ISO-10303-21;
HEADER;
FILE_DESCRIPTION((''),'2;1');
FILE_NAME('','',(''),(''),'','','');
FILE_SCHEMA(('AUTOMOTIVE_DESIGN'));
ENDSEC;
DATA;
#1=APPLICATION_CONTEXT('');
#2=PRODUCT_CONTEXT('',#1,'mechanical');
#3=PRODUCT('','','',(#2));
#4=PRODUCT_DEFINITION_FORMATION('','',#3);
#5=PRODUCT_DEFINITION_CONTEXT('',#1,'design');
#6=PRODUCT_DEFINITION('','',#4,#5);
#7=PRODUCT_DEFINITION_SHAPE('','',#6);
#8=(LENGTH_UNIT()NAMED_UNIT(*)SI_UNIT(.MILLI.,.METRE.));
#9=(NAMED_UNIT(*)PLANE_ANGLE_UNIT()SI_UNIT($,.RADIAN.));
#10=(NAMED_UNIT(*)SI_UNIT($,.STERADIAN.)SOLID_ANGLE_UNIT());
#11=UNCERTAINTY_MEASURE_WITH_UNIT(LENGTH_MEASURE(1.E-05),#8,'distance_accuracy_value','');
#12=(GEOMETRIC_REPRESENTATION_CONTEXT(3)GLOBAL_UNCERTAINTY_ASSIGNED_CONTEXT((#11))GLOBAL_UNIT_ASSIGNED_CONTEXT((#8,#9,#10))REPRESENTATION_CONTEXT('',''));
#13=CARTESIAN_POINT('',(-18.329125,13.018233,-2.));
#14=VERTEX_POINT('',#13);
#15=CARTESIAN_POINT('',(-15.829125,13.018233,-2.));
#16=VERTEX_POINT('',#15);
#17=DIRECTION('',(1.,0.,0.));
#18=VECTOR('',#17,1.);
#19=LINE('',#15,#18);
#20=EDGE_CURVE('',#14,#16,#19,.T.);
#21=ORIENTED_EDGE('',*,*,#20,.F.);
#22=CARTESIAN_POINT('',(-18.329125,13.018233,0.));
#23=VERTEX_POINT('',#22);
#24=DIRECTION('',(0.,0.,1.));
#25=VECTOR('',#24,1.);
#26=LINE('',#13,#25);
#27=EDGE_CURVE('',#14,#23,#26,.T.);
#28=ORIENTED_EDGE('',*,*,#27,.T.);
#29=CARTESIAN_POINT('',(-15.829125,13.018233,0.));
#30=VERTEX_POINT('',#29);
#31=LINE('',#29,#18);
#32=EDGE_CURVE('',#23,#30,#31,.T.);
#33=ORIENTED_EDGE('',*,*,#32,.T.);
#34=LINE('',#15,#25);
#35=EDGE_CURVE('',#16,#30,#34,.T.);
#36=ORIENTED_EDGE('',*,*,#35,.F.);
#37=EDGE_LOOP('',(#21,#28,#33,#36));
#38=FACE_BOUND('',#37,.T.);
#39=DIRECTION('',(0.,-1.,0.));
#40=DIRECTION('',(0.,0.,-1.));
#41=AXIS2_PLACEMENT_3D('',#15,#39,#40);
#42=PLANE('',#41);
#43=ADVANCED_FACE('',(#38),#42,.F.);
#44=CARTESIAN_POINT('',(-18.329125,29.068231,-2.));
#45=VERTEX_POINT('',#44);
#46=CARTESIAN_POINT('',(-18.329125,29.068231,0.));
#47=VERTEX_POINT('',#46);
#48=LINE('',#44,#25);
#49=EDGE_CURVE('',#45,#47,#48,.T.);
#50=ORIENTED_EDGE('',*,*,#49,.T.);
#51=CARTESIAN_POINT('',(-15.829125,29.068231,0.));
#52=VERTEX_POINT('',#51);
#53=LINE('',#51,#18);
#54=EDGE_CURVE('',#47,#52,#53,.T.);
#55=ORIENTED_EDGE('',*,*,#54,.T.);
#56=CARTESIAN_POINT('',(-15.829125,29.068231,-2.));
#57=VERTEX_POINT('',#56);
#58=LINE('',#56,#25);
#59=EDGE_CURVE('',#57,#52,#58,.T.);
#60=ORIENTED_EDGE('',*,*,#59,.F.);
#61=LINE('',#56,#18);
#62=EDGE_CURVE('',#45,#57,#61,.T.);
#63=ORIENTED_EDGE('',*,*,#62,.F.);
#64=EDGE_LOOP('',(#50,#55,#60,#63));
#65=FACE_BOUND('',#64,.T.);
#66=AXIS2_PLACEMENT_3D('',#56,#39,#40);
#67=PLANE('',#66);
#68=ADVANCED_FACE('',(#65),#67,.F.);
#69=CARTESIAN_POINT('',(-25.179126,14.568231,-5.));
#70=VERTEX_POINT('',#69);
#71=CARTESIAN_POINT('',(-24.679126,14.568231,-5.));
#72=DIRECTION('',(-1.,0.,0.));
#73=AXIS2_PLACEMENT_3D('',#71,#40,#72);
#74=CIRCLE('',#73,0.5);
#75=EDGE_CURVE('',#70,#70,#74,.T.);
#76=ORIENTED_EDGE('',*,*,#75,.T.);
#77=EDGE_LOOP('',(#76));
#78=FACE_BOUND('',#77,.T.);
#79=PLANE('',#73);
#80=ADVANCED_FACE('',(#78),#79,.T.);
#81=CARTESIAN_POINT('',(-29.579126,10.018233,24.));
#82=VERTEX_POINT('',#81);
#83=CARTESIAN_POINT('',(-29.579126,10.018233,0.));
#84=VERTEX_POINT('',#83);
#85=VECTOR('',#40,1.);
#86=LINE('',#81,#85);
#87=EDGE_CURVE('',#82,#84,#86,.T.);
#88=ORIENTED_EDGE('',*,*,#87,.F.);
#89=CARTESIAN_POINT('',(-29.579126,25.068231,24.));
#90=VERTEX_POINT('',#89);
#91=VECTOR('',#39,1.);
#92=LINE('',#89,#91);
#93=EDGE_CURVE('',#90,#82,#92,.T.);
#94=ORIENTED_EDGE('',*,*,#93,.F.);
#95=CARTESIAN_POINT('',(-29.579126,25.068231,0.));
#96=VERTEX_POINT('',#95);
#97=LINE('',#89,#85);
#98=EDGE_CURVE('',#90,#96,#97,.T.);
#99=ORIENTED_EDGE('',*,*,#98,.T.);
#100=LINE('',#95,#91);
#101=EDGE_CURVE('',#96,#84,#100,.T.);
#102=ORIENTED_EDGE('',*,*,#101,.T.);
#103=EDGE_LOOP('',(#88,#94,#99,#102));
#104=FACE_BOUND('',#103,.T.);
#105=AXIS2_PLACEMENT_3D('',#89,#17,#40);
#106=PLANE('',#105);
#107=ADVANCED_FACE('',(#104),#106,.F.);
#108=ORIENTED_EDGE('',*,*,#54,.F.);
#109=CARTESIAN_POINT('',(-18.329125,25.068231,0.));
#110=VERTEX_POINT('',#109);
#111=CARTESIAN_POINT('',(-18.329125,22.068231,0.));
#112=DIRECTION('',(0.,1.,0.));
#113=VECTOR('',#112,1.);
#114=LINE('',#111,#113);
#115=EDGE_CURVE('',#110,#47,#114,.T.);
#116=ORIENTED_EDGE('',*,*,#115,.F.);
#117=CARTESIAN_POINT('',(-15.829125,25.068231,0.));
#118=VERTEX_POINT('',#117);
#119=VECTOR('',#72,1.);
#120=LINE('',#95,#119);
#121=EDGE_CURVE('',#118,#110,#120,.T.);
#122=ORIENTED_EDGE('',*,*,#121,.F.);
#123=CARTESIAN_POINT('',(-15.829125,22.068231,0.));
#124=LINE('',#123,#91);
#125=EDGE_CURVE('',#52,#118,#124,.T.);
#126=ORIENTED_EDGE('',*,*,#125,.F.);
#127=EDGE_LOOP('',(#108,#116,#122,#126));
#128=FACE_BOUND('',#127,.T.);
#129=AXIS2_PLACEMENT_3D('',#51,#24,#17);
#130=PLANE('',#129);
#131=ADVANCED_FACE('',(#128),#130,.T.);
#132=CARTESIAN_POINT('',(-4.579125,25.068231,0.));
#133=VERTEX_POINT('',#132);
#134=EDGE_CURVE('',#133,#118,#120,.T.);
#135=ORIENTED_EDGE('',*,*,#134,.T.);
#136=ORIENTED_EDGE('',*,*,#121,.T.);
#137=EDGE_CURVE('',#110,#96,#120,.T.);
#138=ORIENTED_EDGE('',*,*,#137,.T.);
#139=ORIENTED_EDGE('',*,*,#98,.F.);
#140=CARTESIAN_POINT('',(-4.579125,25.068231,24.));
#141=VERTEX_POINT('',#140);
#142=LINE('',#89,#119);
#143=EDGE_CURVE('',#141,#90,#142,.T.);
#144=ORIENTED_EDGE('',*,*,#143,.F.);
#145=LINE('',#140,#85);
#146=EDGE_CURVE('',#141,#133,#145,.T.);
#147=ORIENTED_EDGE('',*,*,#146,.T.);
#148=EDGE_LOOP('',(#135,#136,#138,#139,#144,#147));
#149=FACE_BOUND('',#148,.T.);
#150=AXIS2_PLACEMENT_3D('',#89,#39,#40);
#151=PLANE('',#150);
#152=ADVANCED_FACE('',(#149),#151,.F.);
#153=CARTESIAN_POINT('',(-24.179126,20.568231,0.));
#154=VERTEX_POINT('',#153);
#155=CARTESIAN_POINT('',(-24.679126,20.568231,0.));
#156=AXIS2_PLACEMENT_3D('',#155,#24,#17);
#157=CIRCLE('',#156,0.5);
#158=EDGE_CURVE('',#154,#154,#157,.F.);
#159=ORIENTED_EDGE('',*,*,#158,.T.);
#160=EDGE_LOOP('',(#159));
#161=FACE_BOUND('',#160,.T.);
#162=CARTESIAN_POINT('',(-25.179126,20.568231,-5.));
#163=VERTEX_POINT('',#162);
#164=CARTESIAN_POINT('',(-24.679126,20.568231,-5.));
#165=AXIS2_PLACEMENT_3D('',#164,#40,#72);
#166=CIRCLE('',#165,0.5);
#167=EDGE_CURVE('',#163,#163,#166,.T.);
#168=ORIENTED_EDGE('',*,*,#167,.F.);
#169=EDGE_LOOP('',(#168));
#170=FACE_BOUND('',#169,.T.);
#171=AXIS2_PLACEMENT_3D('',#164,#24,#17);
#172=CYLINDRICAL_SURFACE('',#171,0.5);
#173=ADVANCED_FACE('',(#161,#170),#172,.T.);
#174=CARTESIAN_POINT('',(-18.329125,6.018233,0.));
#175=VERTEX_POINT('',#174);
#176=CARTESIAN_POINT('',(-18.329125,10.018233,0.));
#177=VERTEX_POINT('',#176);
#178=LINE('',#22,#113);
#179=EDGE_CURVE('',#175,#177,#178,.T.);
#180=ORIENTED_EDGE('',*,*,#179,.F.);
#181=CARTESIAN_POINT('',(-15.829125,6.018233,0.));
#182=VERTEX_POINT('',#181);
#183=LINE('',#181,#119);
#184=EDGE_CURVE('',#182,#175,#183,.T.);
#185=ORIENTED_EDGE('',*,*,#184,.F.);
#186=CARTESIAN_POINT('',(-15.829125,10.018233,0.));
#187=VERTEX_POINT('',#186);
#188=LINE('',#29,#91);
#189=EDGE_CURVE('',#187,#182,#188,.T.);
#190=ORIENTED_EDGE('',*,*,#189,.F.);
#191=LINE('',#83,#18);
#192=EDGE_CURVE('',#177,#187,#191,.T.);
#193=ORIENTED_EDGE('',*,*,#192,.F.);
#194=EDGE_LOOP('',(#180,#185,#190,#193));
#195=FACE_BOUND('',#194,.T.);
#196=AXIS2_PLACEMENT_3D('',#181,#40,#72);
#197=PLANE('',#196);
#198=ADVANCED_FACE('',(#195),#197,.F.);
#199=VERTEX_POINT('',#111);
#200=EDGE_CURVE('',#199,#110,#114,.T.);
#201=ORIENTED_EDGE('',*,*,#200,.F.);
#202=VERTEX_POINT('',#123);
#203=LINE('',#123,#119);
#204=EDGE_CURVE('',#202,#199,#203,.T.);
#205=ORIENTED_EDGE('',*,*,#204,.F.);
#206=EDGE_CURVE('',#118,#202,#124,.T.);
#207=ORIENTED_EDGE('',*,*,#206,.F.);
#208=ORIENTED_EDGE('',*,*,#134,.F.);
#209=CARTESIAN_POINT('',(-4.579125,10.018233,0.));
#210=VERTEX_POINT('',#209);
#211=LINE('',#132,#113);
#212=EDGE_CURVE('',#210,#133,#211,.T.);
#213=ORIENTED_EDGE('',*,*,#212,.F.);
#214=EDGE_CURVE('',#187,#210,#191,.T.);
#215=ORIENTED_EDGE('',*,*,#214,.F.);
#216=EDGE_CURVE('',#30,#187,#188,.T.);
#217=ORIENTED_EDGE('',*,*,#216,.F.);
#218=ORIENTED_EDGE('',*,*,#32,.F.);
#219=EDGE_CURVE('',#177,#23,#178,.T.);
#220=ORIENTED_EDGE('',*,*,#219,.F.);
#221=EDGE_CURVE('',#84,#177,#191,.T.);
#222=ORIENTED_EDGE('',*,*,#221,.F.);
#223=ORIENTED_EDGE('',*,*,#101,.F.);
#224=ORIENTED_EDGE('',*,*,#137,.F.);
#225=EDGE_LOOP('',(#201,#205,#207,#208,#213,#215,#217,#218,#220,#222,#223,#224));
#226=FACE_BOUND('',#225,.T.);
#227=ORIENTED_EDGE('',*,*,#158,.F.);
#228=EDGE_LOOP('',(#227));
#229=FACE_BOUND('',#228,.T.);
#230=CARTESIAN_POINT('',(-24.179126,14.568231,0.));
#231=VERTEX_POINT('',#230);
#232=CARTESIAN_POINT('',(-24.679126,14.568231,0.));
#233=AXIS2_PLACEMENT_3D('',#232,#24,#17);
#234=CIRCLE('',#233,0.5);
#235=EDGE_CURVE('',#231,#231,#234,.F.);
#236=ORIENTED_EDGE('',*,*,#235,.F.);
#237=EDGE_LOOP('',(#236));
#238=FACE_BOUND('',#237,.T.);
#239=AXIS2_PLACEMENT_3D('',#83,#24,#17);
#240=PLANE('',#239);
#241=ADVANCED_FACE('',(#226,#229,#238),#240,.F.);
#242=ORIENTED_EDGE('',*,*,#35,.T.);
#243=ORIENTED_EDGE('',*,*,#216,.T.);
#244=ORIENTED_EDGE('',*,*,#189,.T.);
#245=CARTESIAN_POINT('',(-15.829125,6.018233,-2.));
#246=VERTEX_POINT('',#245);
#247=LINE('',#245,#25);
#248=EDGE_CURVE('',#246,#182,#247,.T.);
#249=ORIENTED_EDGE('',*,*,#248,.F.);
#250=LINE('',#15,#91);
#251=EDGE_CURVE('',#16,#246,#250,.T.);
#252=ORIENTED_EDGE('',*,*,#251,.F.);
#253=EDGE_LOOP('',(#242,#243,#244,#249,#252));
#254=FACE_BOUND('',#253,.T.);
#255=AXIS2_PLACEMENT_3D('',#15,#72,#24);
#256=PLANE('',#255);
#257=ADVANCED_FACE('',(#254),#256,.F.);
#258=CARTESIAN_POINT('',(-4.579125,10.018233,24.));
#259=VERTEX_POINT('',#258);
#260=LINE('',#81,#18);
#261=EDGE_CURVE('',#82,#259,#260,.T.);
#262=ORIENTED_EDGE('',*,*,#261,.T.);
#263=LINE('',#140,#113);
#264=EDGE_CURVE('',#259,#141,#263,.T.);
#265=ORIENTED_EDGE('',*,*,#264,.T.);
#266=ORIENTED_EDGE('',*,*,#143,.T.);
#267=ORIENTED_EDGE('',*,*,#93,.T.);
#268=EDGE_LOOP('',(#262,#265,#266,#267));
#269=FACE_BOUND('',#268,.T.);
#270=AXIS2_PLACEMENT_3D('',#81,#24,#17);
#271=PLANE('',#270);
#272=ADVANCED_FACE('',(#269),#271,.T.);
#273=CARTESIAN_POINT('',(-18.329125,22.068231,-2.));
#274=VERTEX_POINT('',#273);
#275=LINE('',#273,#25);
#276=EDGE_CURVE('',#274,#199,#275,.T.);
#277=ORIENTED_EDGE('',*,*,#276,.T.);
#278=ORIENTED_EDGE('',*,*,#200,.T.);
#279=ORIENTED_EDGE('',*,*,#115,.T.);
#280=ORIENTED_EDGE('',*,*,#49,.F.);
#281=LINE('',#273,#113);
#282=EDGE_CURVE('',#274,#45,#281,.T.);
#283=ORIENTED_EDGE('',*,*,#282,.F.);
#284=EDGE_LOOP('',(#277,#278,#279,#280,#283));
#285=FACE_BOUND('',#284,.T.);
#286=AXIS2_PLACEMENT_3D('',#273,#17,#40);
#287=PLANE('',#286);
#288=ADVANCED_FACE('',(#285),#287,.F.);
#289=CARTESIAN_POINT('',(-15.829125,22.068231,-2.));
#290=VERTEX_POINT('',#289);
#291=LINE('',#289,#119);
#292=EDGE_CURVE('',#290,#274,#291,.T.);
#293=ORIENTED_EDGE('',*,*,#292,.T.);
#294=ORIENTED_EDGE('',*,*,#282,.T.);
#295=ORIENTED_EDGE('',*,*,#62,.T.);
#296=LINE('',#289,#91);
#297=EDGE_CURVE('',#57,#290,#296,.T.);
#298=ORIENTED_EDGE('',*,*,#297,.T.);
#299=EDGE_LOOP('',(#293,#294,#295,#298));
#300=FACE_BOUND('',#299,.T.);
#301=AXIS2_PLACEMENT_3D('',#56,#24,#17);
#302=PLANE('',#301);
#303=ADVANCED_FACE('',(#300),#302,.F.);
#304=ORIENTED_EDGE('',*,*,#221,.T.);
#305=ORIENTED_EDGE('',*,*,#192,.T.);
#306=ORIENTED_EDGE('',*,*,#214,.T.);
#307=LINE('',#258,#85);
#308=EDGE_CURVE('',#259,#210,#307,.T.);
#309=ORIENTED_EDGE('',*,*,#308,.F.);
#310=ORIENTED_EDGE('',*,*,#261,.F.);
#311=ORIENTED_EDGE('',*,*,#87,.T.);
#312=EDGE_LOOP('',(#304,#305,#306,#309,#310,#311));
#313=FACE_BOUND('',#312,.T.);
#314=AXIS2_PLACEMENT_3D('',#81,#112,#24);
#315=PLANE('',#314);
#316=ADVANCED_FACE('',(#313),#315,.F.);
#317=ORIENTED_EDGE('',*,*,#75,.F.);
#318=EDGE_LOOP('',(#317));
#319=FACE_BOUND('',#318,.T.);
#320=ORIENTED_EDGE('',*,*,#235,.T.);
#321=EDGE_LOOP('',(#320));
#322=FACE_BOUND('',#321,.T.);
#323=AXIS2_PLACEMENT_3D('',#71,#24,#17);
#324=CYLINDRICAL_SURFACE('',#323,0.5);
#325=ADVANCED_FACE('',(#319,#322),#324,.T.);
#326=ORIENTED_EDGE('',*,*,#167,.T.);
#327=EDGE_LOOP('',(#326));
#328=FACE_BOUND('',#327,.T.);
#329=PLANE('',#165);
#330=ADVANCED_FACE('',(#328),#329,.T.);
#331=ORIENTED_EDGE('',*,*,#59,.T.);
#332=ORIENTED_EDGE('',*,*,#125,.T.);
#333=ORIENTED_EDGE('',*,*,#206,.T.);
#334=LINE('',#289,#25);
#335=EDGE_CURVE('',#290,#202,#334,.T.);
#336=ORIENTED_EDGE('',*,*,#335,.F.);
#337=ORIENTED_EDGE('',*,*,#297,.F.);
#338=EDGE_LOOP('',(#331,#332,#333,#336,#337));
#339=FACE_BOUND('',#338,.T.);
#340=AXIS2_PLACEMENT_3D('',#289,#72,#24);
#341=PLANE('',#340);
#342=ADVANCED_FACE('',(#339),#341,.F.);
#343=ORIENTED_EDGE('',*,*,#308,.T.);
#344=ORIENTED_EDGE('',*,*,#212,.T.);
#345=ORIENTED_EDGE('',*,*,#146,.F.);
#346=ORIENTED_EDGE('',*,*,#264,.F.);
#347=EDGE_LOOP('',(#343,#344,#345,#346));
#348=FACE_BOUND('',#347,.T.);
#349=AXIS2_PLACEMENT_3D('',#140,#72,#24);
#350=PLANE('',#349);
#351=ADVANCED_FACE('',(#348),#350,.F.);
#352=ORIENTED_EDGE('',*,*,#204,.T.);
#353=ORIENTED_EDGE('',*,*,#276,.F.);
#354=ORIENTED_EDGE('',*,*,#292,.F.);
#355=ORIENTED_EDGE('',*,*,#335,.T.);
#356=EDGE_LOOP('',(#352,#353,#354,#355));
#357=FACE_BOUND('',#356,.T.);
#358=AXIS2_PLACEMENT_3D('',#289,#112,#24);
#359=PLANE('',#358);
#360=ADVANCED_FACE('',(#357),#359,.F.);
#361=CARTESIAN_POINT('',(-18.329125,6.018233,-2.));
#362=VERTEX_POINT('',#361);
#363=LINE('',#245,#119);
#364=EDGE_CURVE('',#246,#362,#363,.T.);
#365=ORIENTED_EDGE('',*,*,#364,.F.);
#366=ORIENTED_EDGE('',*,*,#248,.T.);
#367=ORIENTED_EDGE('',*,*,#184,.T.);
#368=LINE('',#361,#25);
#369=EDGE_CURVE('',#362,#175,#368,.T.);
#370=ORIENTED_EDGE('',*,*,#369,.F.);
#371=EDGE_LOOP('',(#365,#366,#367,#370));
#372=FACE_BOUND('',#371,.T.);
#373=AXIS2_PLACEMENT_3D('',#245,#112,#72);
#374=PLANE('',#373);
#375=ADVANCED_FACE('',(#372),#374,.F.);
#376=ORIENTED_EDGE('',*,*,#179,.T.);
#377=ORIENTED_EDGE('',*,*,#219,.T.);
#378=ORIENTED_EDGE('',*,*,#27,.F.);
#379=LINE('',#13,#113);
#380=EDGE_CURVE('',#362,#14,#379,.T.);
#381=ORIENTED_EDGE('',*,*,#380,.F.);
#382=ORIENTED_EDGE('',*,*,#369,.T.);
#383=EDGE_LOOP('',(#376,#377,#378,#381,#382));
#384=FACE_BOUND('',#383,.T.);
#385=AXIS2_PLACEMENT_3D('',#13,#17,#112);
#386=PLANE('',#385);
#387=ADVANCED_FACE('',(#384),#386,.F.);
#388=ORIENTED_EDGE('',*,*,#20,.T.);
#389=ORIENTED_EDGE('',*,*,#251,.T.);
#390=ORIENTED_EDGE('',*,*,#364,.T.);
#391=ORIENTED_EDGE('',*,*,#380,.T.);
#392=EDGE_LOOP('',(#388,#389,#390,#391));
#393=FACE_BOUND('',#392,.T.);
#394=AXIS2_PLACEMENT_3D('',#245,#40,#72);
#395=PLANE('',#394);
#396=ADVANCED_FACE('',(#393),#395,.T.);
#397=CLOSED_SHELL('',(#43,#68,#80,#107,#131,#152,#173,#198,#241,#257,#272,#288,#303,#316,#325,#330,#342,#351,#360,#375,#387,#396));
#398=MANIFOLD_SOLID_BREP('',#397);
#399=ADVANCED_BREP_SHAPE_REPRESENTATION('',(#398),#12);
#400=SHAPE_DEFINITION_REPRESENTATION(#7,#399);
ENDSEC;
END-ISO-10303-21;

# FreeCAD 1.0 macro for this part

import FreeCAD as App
import Part
import Sketcher

V = App.Vector
Q = App.Units.Quantity

doc = App.newDocument("Part")
body = doc.addObject("PartDesign::Body", "Body")

# Sketch on XY plane
sketch1 = body.newObject("Sketcher::SketchObject", "Sketch")
sketch1.AttachmentSupport = (doc.getObject("XY_Plane"), [""])
sketch1.MapMode = "FlatFace"
sketch1.addGeometry(Part.LineSegment(V(-29.579126, 25.068231, 0), V(-29.579126, 10.018233, 0)), False)
sketch1.addGeometry(Part.LineSegment(V(-29.579126, 10.018233, 0), V(-4.579125, 10.018233, 0)), False)
sketch1.addGeometry(Part.LineSegment(V(-4.579125, 10.018233, 0), V(-4.579125, 25.068231, 0)), False)
sketch1.addGeometry(Part.LineSegment(V(-4.579125, 25.068231, 0), V(-29.579126, 25.068231, 0)), False)
sketch1.addConstraint(Sketcher.Constraint("Coincident", 0, 2, 1, 1))
sketch1.addConstraint(Sketcher.Constraint("Coincident", 1, 2, 2, 1))
sketch1.addConstraint(Sketcher.Constraint("Coincident", 2, 2, 3, 1))
sketch1.addConstraint(Sketcher.Constraint("Coincident", 3, 2, 0, 1))
sketch1.addConstraint(Sketcher.Constraint("Vertical", 0))
sketch1.addConstraint(Sketcher.Constraint("Horizontal", 1))
sketch1.addConstraint(Sketcher.Constraint("Vertical", 2))
sketch1.addConstraint(Sketcher.Constraint("Horizontal", 3))
sketch1.addConstraint(Sketcher.Constraint("DistanceX", 1, 1, 1, 2, Q("25.000001 mm")))
sketch1.addConstraint(Sketcher.Constraint("DistanceY", 0, 2, 0, 1, Q("15.049998 mm")))
sketch1.addConstraint(Sketcher.Constraint("DistanceY", -1, 1, 2, 2, Q("25.068231 mm")))
sketch1.addConstraint(Sketcher.Constraint("DistanceX", 0, 2, -1, 1, Q("29.579126 mm")))
pad1 = body.newObject("PartDesign::Pad", "Pad")
pad1.Profile = sketch1
pad1.Length = 24

# Sketch on XY plane
sketch2 = body.newObject("Sketcher::SketchObject", "Sketch001")
sketch2.AttachmentSupport = (doc.getObject("XY_Plane"), [""])
sketch2.MapMode = "FlatFace"
sketch2.addGeometry(Part.Circle(V(-24.679126, 20.568231, 0), V(0, 0, 1), 0.5), False)
sketch2.addGeometry(Part.Circle(V(-24.679126, 14.568231, 0), V(0, 0, 1), 0.5), False)
sketch2.addConstraint(Sketcher.Constraint("Equal", 0, 1))
sketch2.addConstraint(Sketcher.Constraint("Vertical", 0, 3, 1, 3))
sketch2.addConstraint(Sketcher.Constraint("Diameter", 0, Q("1 mm")))
sketch2.addConstraint(Sketcher.Constraint("DistanceY", 1, 3, 0, 3, Q("6 mm")))
sketch2.addConstraint(Sketcher.Constraint("DistanceY", -1, 1, 0, 3, Q("20.568231 mm")))
sketch2.addConstraint(Sketcher.Constraint("DistanceX", 0, 3, -1, 1, Q("24.679126 mm")))
pad2 = body.newObject("PartDesign::Pad", "Pad001")
pad2.Profile = sketch2
pad2.Length = 5
pad2.Reversed = True

# Sketch on XY plane
sketch3 = body.newObject("Sketcher::SketchObject", "Sketch002")
sketch3.AttachmentSupport = (doc.getObject("XY_Plane"), [""])
sketch3.MapMode = "FlatFace"
sketch3.addGeometry(Part.LineSegment(V(-15.829125, 29.068231, 0), V(-15.829125, 22.068231, 0)), False)
sketch3.addGeometry(Part.LineSegment(V(-15.829125, 22.068231, 0), V(-18.329125, 22.068231, 0)), False)
sketch3.addGeometry(Part.LineSegment(V(-18.329125, 22.068231, 0), V(-18.329125, 29.068231, 0)), False)
sketch3.addGeometry(Part.LineSegment(V(-18.329125, 29.068231, 0), V(-15.829125, 29.068231, 0)), False)
sketch3.addGeometry(Part.LineSegment(V(-15.829125, 13.018233, 0), V(-15.829125, 6.018233, 0)), False)
sketch3.addGeometry(Part.LineSegment(V(-15.829125, 6.018233, 0), V(-18.329125, 6.018233, 0)), False)
sketch3.addGeometry(Part.LineSegment(V(-18.329125, 6.018233, 0), V(-18.329125, 13.018233, 0)), False)
sketch3.addGeometry(Part.LineSegment(V(-18.329125, 13.018233, 0), V(-15.829125, 13.018233, 0)), False)
sketch3.addConstraint(Sketcher.Constraint("Coincident", 0, 2, 1, 1))
sketch3.addConstraint(Sketcher.Constraint("Coincident", 1, 2, 2, 1))
sketch3.addConstraint(Sketcher.Constraint("Coincident", 2, 2, 3, 1))
sketch3.addConstraint(Sketcher.Constraint("Coincident", 3, 2, 0, 1))
sketch3.addConstraint(Sketcher.Constraint("Coincident", 4, 2, 5, 1))
sketch3.addConstraint(Sketcher.Constraint("Coincident", 5, 2, 6, 1))
sketch3.addConstraint(Sketcher.Constraint("Coincident", 6, 2, 7, 1))
sketch3.addConstraint(Sketcher.Constraint("Coincident", 7, 2, 4, 1))
sketch3.addConstraint(Sketcher.Constraint("Vertical", 0))
sketch3.addConstraint(Sketcher.Constraint("Horizontal", 1))
sketch3.addConstraint(Sketcher.Constraint("Vertical", 2))
sketch3.addConstraint(Sketcher.Constraint("Horizontal", 3))
sketch3.addConstraint(Sketcher.Constraint("Vertical", 4))
sketch3.addConstraint(Sketcher.Constraint("Horizontal", 5))
sketch3.addConstraint(Sketcher.Constraint("Vertical", 6))
sketch3.addConstraint(Sketcher.Constraint("Horizontal", 7))
sketch3.addConstraint(Sketcher.Constraint("Vertical", 3, 2, 4, 2))
sketch3.addConstraint(Sketcher.Constraint("Vertical", 2, 2, 5, 2))
sketch3.addConstraint(Sketcher.Constraint("Equal", 2, 4))
sketch3.addConstraint(Sketcher.Constraint("DistanceY", 0, 2, 0, 1, Q("7 mm")))
sketch3.addConstraint(Sketcher.Constraint("DistanceX", 1, 2, 1, 1, Q("2.5 mm")))
sketch3.addConstraint(Sketcher.Constraint("DistanceY", -1, 1, 0, 2, Q("22.068231 mm")))
sketch3.addConstraint(Sketcher.Constraint("DistanceX", 0, 2, -1, 1, Q("15.829125 mm")))
sketch3.addConstraint(Sketcher.Constraint("DistanceY", -1, 1, 4, 2, Q("6.018233 mm")))
pad3 = body.newObject("PartDesign::Pad", "Pad002")
pad3.Profile = sketch3
pad3.Length = 2
pad3.Reversed = True

doc.recompute()
